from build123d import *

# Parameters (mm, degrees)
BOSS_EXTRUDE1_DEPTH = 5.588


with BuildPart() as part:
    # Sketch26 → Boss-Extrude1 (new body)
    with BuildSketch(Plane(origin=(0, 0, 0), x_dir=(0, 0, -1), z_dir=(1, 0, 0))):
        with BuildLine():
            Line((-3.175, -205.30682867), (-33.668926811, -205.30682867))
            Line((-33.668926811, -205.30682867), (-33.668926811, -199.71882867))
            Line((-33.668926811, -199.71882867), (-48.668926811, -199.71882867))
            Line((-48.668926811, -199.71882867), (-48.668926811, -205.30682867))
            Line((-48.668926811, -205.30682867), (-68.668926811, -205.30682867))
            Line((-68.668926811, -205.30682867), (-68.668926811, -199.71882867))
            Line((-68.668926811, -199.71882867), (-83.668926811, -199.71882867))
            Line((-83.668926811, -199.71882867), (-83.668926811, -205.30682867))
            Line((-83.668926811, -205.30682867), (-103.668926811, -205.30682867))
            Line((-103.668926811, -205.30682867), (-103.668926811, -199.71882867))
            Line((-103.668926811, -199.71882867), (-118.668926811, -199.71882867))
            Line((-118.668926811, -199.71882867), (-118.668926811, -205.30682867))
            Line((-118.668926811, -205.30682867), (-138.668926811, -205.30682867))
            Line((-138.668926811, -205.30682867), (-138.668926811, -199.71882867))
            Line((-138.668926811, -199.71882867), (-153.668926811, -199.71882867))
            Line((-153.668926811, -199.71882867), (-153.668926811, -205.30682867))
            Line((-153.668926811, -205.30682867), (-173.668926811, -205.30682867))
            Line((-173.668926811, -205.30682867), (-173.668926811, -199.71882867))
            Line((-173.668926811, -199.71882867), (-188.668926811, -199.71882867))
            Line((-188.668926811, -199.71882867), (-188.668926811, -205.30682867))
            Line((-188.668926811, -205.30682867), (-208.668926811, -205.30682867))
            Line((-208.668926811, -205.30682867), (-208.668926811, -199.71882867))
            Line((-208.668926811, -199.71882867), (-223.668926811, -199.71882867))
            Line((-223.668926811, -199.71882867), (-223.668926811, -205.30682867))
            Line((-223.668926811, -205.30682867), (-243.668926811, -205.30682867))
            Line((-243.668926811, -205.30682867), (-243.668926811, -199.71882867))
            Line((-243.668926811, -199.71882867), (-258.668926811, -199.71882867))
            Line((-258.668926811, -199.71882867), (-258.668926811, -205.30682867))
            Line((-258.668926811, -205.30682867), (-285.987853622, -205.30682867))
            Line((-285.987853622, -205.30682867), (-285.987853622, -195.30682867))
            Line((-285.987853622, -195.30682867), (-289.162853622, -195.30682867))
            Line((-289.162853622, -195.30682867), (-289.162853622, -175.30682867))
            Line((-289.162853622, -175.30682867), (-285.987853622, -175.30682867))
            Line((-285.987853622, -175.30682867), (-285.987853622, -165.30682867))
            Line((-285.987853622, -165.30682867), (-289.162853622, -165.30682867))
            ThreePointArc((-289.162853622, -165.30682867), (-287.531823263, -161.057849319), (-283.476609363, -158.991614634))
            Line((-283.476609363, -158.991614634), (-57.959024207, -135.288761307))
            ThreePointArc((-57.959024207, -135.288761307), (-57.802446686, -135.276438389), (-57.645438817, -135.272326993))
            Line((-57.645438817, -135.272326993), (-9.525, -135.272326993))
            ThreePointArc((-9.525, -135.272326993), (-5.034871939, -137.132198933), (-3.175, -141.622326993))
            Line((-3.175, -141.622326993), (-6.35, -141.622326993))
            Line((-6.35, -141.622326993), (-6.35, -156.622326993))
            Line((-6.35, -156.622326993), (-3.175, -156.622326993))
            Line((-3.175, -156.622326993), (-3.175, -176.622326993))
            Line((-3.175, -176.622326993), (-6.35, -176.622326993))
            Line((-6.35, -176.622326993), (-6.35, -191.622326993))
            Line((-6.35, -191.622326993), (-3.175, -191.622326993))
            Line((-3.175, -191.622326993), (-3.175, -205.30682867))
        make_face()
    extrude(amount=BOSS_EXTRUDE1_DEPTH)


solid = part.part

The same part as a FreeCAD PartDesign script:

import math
import FreeCAD as App
import Part
import Sketcher
from FreeCAD import Vector
Q = App.Units.Quantity

doc = App.newDocument("Part")
params = doc.addObject("Spreadsheet::Sheet", "Params")
for row, (alias, value) in enumerate([
    ("sketch1_radius", "3 mm"),
    ("sketch1_width", "15 mm"),
    ("sketch1_width2", "20 mm"),
    ("sketch1_width3", "10 mm"),
    ("sketch1_radius2", "6.35 mm"),
    ("pad1_length", "5.588 mm"),
], start=1):
    params.set(f"A{row}", alias)
    params.set(f"B{row}", "=" + value)
    params.setAlias(f"B{row}", alias)

body = doc.addObject("PartDesign::Body", "Body")

# Sketch on YZ plane
sketch1 = body.newObject("Sketcher::SketchObject", "Sketch")
sketch1.AttachmentSupport = (doc.getObject("YZ_Plane"), [""])
sketch1.MapMode = "FlatFace"
sketch1.addGeometry([
    Part.LineSegment(Vector(-205.31, 33.67, 0), Vector(-205.31, 3.17, 0)),  # 0
    Part.LineSegment(Vector(-205.31, 3.17, 0), Vector(-191.62, 3.17, 0)),  # 1
    Part.LineSegment(Vector(-191.62, 3.17, 0), Vector(-191.62, 6.35, 0)),  # 2
    Part.LineSegment(Vector(-191.62, 6.35, 0), Vector(-176.62, 6.35, 0)),  # 3
    Part.LineSegment(Vector(-176.62, 6.35, 0), Vector(-176.62, 3.17, 0)),  # 4
    Part.LineSegment(Vector(-176.62, 3.17, 0), Vector(-156.62, 3.17, 0)),  # 5
    Part.LineSegment(Vector(-156.62, 3.17, 0), Vector(-156.62, 6.35, 0)),  # 6
    Part.LineSegment(Vector(-156.62, 6.35, 0), Vector(-141.62, 6.35, 0)),  # 7
    Part.LineSegment(Vector(-141.62, 6.35, 0), Vector(-141.62, 3.17, 0)),  # 8
    Part.ArcOfCircle(Part.Circle(Vector(-141.62, 9.53, 0), Vector(0, 0, 1), 6.35), math.radians(-90), math.radians(0)),  # 9
    Part.LineSegment(Vector(-135.27, 9.53, 0), Vector(-135.27, 57.65, 0)),  # 10
    Part.ArcOfCircle(Part.Circle(Vector(-138.27, 57.65, 0), Vector(0, 0, 1), 3), math.radians(0), math.radians(6)),  # 11
    Part.LineSegment(Vector(-135.29, 57.96, 0), Vector(-158.99, 283.48, 0)),  # 12
    Part.ArcOfCircle(Part.Circle(Vector(-165.31, 282.81, 0), Vector(0, 0, 1), 6.35), math.radians(6), math.radians(90)),  # 13
    Part.LineSegment(Vector(-165.31, 289.16, 0), Vector(-165.31, 285.99, 0)),  # 14
    Part.LineSegment(Vector(-165.31, 285.99, 0), Vector(-175.31, 285.99, 0)),  # 15
    Part.LineSegment(Vector(-175.31, 285.99, 0), Vector(-175.31, 289.16, 0)),  # 16
    Part.LineSegment(Vector(-175.31, 289.16, 0), Vector(-195.31, 289.16, 0)),  # 17
    Part.LineSegment(Vector(-195.31, 289.16, 0), Vector(-195.31, 285.99, 0)),  # 18
    Part.LineSegment(Vector(-195.31, 285.99, 0), Vector(-205.31, 285.99, 0)),  # 19
    Part.LineSegment(Vector(-205.31, 285.99, 0), Vector(-205.31, 258.67, 0)),  # 20
    Part.LineSegment(Vector(-205.31, 258.67, 0), Vector(-199.72, 258.67, 0)),  # 21
    Part.LineSegment(Vector(-199.72, 258.67, 0), Vector(-199.72, 243.67, 0)),  # 22
    Part.LineSegment(Vector(-199.72, 243.67, 0), Vector(-205.31, 243.67, 0)),  # 23
    Part.LineSegment(Vector(-205.31, 243.67, 0), Vector(-205.31, 223.67, 0)),  # 24
    Part.LineSegment(Vector(-205.31, 223.67, 0), Vector(-199.72, 223.67, 0)),  # 25
    Part.LineSegment(Vector(-199.72, 223.67, 0), Vector(-199.72, 208.67, 0)),  # 26
    Part.LineSegment(Vector(-199.72, 208.67, 0), Vector(-205.31, 208.67, 0)),  # 27
    Part.LineSegment(Vector(-205.31, 208.67, 0), Vector(-205.31, 188.67, 0)),  # 28
    Part.LineSegment(Vector(-205.31, 188.67, 0), Vector(-199.72, 188.67, 0)),  # 29
    Part.LineSegment(Vector(-199.72, 188.67, 0), Vector(-199.72, 173.67, 0)),  # 30
    Part.LineSegment(Vector(-199.72, 173.67, 0), Vector(-205.31, 173.67, 0)),  # 31
    Part.LineSegment(Vector(-205.31, 173.67, 0), Vector(-205.31, 153.67, 0)),  # 32
    Part.LineSegment(Vector(-205.31, 153.67, 0), Vector(-199.72, 153.67, 0)),  # 33
    Part.LineSegment(Vector(-199.72, 153.67, 0), Vector(-199.72, 138.67, 0)),  # 34
    Part.LineSegment(Vector(-199.72, 138.67, 0), Vector(-205.31, 138.67, 0)),  # 35
    Part.LineSegment(Vector(-205.31, 138.67, 0), Vector(-205.31, 118.67, 0)),  # 36
    Part.LineSegment(Vector(-205.31, 118.67, 0), Vector(-199.72, 118.67, 0)),  # 37
    Part.LineSegment(Vector(-199.72, 118.67, 0), Vector(-199.72, 103.67, 0)),  # 38
    Part.LineSegment(Vector(-199.72, 103.67, 0), Vector(-205.31, 103.67, 0)),  # 39
    Part.LineSegment(Vector(-205.31, 103.67, 0), Vector(-205.31, 83.67, 0)),  # 40
    Part.LineSegment(Vector(-205.31, 83.67, 0), Vector(-199.72, 83.67, 0)),  # 41
    Part.LineSegment(Vector(-199.72, 83.67, 0), Vector(-199.72, 68.67, 0)),  # 42
    Part.LineSegment(Vector(-199.72, 68.67, 0), Vector(-205.31, 68.67, 0)),  # 43
    Part.LineSegment(Vector(-205.31, 68.67, 0), Vector(-205.31, 48.67, 0)),  # 44
    Part.LineSegment(Vector(-205.31, 48.67, 0), Vector(-199.72, 48.67, 0)),  # 45
    Part.LineSegment(Vector(-199.72, 48.67, 0), Vector(-199.72, 33.67, 0)),  # 46
    Part.LineSegment(Vector(-199.72, 33.67, 0), Vector(-205.31, 33.67, 0)),  # 47
], False)
sketch1.addConstraint([
    Sketcher.Constraint("Coincident", 0, 2, 1, 1),
    Sketcher.Constraint("Coincident", 1, 2, 2, 1),
    Sketcher.Constraint("Coincident", 2, 2, 3, 1),
    Sketcher.Constraint("Coincident", 3, 2, 4, 1),
    Sketcher.Constraint("Coincident", 4, 2, 5, 1),
    Sketcher.Constraint("Coincident", 5, 2, 6, 1),
    Sketcher.Constraint("Coincident", 6, 2, 7, 1),
    Sketcher.Constraint("Coincident", 7, 2, 8, 1),
    Sketcher.Constraint("Coincident", 8, 2, 9, 1),
    Sketcher.Constraint("Tangent", 9, 2, 10, 1),
    Sketcher.Constraint("Tangent", 10, 2, 11, 1),
    Sketcher.Constraint("Tangent", 11, 2, 12, 1),
    Sketcher.Constraint("Tangent", 12, 2, 13, 1),
    Sketcher.Constraint("Coincident", 13, 2, 14, 1),
    Sketcher.Constraint("Coincident", 14, 2, 15, 1),
    Sketcher.Constraint("Coincident", 15, 2, 16, 1),
    Sketcher.Constraint("Coincident", 16, 2, 17, 1),
    Sketcher.Constraint("Coincident", 17, 2, 18, 1),
    Sketcher.Constraint("Coincident", 18, 2, 19, 1),
    Sketcher.Constraint("Coincident", 19, 2, 20, 1),
    Sketcher.Constraint("Coincident", 20, 2, 21, 1),
    Sketcher.Constraint("Coincident", 21, 2, 22, 1),
    Sketcher.Constraint("Coincident", 22, 2, 23, 1),
    Sketcher.Constraint("Coincident", 23, 2, 24, 1),
    Sketcher.Constraint("Coincident", 24, 2, 25, 1),
    Sketcher.Constraint("Coincident", 25, 2, 26, 1),
    Sketcher.Constraint("Coincident", 26, 2, 27, 1),
    Sketcher.Constraint("Coincident", 27, 2, 28, 1),
    Sketcher.Constraint("Coincident", 28, 2, 29, 1),
    Sketcher.Constraint("Coincident", 29, 2, 30, 1),
    Sketcher.Constraint("Coincident", 30, 2, 31, 1),
    Sketcher.Constraint("Coincident", 31, 2, 32, 1),
    Sketcher.Constraint("Coincident", 32, 2, 33, 1),
    Sketcher.Constraint("Coincident", 33, 2, 34, 1),
    Sketcher.Constraint("Coincident", 34, 2, 35, 1),
    Sketcher.Constraint("Coincident", 35, 2, 36, 1),
    Sketcher.Constraint("Coincident", 36, 2, 37, 1),
    Sketcher.Constraint("Coincident", 37, 2, 38, 1),
    Sketcher.Constraint("Coincident", 38, 2, 39, 1),
    Sketcher.Constraint("Coincident", 39, 2, 40, 1),
    Sketcher.Constraint("Coincident", 40, 2, 41, 1),
    Sketcher.Constraint("Coincident", 41, 2, 42, 1),
    Sketcher.Constraint("Coincident", 42, 2, 43, 1),
    Sketcher.Constraint("Coincident", 43, 2, 44, 1),
    Sketcher.Constraint("Coincident", 44, 2, 45, 1),
    Sketcher.Constraint("Coincident", 45, 2, 46, 1),
    Sketcher.Constraint("Coincident", 46, 2, 47, 1),
    Sketcher.Constraint("Coincident", 47, 2, 0, 1),
    Sketcher.Constraint("Vertical", 0),
    Sketcher.Constraint("Horizontal", 1),
    Sketcher.Constraint("Vertical", 2),
    Sketcher.Constraint("Horizontal", 3),
    Sketcher.Constraint("Vertical", 4),
    Sketcher.Constraint("Horizontal", 5),
    Sketcher.Constraint("Vertical", 6),
    Sketcher.Constraint("Horizontal", 7),
    Sketcher.Constraint("Vertical", 8),
    Sketcher.Constraint("Vertical", 10),
    Sketcher.Constraint("Vertical", 14),
    Sketcher.Constraint("Horizontal", 15),
    Sketcher.Constraint("Vertical", 16),
    Sketcher.Constraint("Horizontal", 17),
    Sketcher.Constraint("Vertical", 18),
    Sketcher.Constraint("Horizontal", 19),
    Sketcher.Constraint("Vertical", 20),
    Sketcher.Constraint("Horizontal", 21),
    Sketcher.Constraint("Vertical", 22),
    Sketcher.Constraint("Horizontal", 23),
    Sketcher.Constraint("Vertical", 24),
    Sketcher.Constraint("Horizontal", 25),
    Sketcher.Constraint("Vertical", 26),
    Sketcher.Constraint("Horizontal", 27),
    Sketcher.Constraint("Vertical", 28),
    Sketcher.Constraint("Horizontal", 29),
    Sketcher.Constraint("Vertical", 30),
    Sketcher.Constraint("Horizontal", 31),
    Sketcher.Constraint("Vertical", 32),
    Sketcher.Constraint("Horizontal", 33),
    Sketcher.Constraint("Vertical", 34),
    Sketcher.Constraint("Horizontal", 35),
    Sketcher.Constraint("Vertical", 36),
    Sketcher.Constraint("Horizontal", 37),
    Sketcher.Constraint("Vertical", 38),
    Sketcher.Constraint("Horizontal", 39),
    Sketcher.Constraint("Vertical", 40),
    Sketcher.Constraint("Horizontal", 41),
    Sketcher.Constraint("Vertical", 42),
    Sketcher.Constraint("Horizontal", 43),
    Sketcher.Constraint("Vertical", 44),
    Sketcher.Constraint("Horizontal", 45),
    Sketcher.Constraint("Vertical", 46),
    Sketcher.Constraint("Horizontal", 47),
    Sketcher.Constraint("Equal", 9, 13),
    Sketcher.Constraint("Horizontal", 1, 2, 4, 2),
    Sketcher.Constraint("Horizontal", 3, 2, 6, 2),
    Sketcher.Constraint("Horizontal", 5, 2, 8, 2),
    Sketcher.Constraint("Horizontal", 13, 2, 16, 2),
    Sketcher.Constraint("Horizontal", 15, 2, 18, 2),
    Sketcher.Constraint("Vertical", 9, 3, 7, 2),
    Sketcher.Constraint("Vertical", 0, 2, 19, 2),
    Sketcher.Constraint("Vertical", 20, 2, 23, 2),
    Sketcher.Constraint("Vertical", 22, 2, 25, 2),
    Sketcher.Constraint("Vertical", 24, 2, 27, 2),
    Sketcher.Constraint("Vertical", 26, 2, 29, 2),
    Sketcher.Constraint("Vertical", 28, 2, 31, 2),
    Sketcher.Constraint("Vertical", 30, 2, 33, 2),
    Sketcher.Constraint("Vertical", 32, 2, 35, 2),
    Sketcher.Constraint("Vertical", 34, 2, 37, 2),
    Sketcher.Constraint("Vertical", 36, 2, 39, 2),
    Sketcher.Constraint("Vertical", 38, 2, 41, 2),
    Sketcher.Constraint("Vertical", 40, 2, 43, 2),
    Sketcher.Constraint("Vertical", 42, 2, 45, 2),
    Sketcher.Constraint("Equal", 3, 7),
    Sketcher.Constraint("Equal", 5, 17),
    Sketcher.Constraint("Equal", 15, 19),
    Sketcher.Constraint("Equal", 8, 14),
    Sketcher.Constraint("Equal", 7, 22),
    Sketcher.Constraint("Equal", 17, 24),
    Sketcher.Constraint("Equal", 22, 26),
    Sketcher.Constraint("Equal", 24, 28),
    Sketcher.Constraint("Equal", 26, 30),
    Sketcher.Constraint("Equal", 28, 32),
    Sketcher.Constraint("Equal", 30, 34),
    Sketcher.Constraint("Equal", 32, 36),
    Sketcher.Constraint("Equal", 34, 38),
    Sketcher.Constraint("Equal", 36, 40),
    Sketcher.Constraint("Equal", 38, 42),
    Sketcher.Constraint("Equal", 40, 44),
    Sketcher.Constraint("Equal", 42, 46),
    Sketcher.Constraint("Radius", 11, Q("3 mm")),
    Sketcher.Constraint("DistanceX", 3, 1, 3, 2, Q("15 mm")),
    Sketcher.Constraint("DistanceX", 5, 1, 5, 2, Q("20 mm")),
    Sketcher.Constraint("DistanceX", 15, 2, 15, 1, Q("10 mm")),
    Sketcher.Constraint("Angle", 12, Q("96 deg")),
    Sketcher.Constraint("Radius", 9, Q("6.35 mm")),
    Sketcher.Constraint("DistanceX", 0, 2, 13, 3, Q("40 mm")),
    Sketcher.Constraint("DistanceX", 21, 1, 21, 2, Q("5.588 mm")),
    Sketcher.Constraint("DistanceY", 2, 1, 2, 2, Q("3.175 mm")),
    Sketcher.Constraint("DistanceY", -1, 1, 2, 2, Q("6.35 mm")),
    Sketcher.Constraint("DistanceX", 1, 1, 1, 2, Q("13.684502 mm")),
    Sketcher.Constraint("DistanceY", 10, 1, 10, 2, Q("48.120439 mm")),
    Sketcher.Constraint("DistanceY", 0, 2, 0, 1, Q("30.493927 mm")),
    Sketcher.Constraint("DistanceX", 13, 3, -1, 1, Q("165.306829 mm")),
])
sketch1.setExpression("Constraints[129]", "Params.sketch1_radius")
sketch1.setExpression("Constraints[130]", "Params.sketch1_width")
sketch1.setExpression("Constraints[131]", "Params.sketch1_width2")
sketch1.setExpression("Constraints[132]", "Params.sketch1_width3")
sketch1.setExpression("Constraints[134]", "Params.sketch1_radius2")
pad1 = body.newObject("PartDesign::Pad", "Pad")
pad1.Profile = sketch1
pad1.setExpression("Length", "Params.pad1_length")

doc.recompute()
